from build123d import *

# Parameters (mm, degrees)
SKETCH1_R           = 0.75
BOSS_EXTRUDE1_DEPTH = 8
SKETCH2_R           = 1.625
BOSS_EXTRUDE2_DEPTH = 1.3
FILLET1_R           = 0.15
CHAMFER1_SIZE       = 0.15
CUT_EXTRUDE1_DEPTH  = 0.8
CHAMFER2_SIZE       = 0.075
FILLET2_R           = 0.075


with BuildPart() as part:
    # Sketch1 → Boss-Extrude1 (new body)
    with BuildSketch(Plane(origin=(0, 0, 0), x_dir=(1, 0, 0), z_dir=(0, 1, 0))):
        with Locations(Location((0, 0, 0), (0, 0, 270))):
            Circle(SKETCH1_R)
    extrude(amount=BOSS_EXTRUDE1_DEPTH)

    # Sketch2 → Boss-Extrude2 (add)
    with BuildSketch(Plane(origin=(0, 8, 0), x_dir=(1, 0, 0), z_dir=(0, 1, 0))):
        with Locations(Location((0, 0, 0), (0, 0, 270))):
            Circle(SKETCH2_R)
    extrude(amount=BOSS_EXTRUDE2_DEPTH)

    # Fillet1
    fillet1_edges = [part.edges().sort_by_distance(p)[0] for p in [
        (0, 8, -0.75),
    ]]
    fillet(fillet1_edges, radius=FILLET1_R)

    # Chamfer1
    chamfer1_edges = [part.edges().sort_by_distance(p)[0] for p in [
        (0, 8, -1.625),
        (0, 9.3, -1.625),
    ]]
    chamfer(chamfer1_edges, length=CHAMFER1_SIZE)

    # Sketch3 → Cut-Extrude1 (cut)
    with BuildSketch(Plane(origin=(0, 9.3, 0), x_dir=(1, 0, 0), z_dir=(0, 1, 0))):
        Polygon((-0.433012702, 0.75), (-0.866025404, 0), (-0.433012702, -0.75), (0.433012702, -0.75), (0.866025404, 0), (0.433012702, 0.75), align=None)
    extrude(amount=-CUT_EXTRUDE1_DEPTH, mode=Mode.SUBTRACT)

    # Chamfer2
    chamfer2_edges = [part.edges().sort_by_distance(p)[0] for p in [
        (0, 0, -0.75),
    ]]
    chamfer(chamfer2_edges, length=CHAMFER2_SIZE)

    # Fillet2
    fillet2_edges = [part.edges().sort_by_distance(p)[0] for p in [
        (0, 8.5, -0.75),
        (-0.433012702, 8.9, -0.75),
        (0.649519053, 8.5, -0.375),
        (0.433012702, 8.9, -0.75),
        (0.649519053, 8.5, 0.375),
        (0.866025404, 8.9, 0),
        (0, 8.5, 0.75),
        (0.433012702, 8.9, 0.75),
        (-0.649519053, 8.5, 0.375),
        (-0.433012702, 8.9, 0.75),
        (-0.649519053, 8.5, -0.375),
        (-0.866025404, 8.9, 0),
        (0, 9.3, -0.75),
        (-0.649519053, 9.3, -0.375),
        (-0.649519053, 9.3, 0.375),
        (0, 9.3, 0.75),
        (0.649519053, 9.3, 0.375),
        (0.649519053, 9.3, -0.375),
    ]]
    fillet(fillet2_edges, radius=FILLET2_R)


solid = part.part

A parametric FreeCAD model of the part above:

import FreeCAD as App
import Part
import Sketcher
from FreeCAD import Vector
Q = App.Units.Quantity


def edges_at(feature, points):
    """Names of the edges that pass closest to the given points."""
    edges = feature.Shape.Edges
    near = lambda p: min(range(len(edges)), key=lambda i: edges[i].distToShape(Part.Vertex(*p))[0])
    return sorted({f"Edge{near(p) + 1}" for p in points})

doc = App.newDocument("Part")
body = doc.addObject("PartDesign::Body", "Body")

sketch1 = doc.addObject("Sketcher::SketchObject", "Sketch")
body.addObject(sketch1)
sketch1.AttachmentSupport = (doc.XZ_Plane, [""])
sketch1.MapMode = "FlatFace"
sketch1.addGeometry(Part.Circle(Vector(0, 0, 0), Vector(0, 0, 1), 0.8), False)
sketch1.addConstraint(Sketcher.Constraint("Coincident", 0, 3, -1, 1))
sketch1.addConstraint(Sketcher.Constraint("Diameter", 0, Q("1.5 mm")))
pad1 = doc.addObject("PartDesign::Pad", "Pad")
body.addObject(pad1)
pad1.Profile = sketch1
pad1.Length = 8
pad1.Reversed = True

sketch2 = doc.addObject("Sketcher::SketchObject", "Sketch001")
body.addObject(sketch2)
sketch2.AttachmentSupport = (doc.XZ_Plane, [""])
sketch2.MapMode = "FlatFace"
sketch2.AttachmentOffset = App.Placement(Vector(0, 0, -8), App.Rotation())
sketch2.addGeometry(Part.Circle(Vector(0, 0, 0), Vector(0, 0, 1), 1.6), False)
sketch2.addConstraint(Sketcher.Constraint("Coincident", 0, 3, -1, 1))
sketch2.addConstraint(Sketcher.Constraint("Diameter", 0, Q("3.25 mm")))
pad2 = doc.addObject("PartDesign::Pad", "Pad001")
body.addObject(pad2)
pad2.Profile = sketch2
pad2.Length = 1.3
pad2.Reversed = True
doc.recompute()

fillet = doc.addObject("PartDesign::Fillet", "Fillet")
body.addObject(fillet)
fillet.Base = (pad2, edges_at(pad2, [(0, 8, -0.75)]))
fillet.Radius = 0.15
doc.recompute()

chamfer = doc.addObject("PartDesign::Chamfer", "Chamfer")
body.addObject(chamfer)
chamfer.Base = (fillet, edges_at(fillet, [(0, 8, -1.625), (0, 9.3, -1.625)]))
chamfer.Size = 0.15

sketch3 = doc.addObject("Sketcher::SketchObject", "Sketch002")
body.addObject(sketch3)
sketch3.AttachmentSupport = (doc.XZ_Plane, [""])
sketch3.MapMode = "FlatFace"
sketch3.AttachmentOffset = App.Placement(Vector(0, 0, -9.3), App.Rotation())
sketch3.addGeometry(Part.LineSegment(Vector(-0.4, -0.8, 0), Vector(-0.9, 0, 0)), False)
sketch3.addGeometry(Part.LineSegment(Vector(-0.9, 0, 0), Vector(-0.4, 0.8, 0)), False)
sketch3.addGeometry(Part.LineSegment(Vector(-0.4, 0.8, 0), Vector(0.4, 0.8, 0)), False)
sketch3.addGeometry(Part.LineSegment(Vector(0.4, 0.8, 0), Vector(0.9, 0, 0)), False)
sketch3.addGeometry(Part.LineSegment(Vector(0.9, 0, 0), Vector(0.4, -0.8, 0)), False)
sketch3.addGeometry(Part.LineSegment(Vector(0.4, -0.8, 0), Vector(-0.4, -0.8, 0)), False)
sketch3.addConstraint(Sketcher.Constraint("Coincident", 0, 2, 1, 1))
sketch3.addConstraint(Sketcher.Constraint("Coincident", 1, 2, 2, 1))
sketch3.addConstraint(Sketcher.Constraint("Coincident", 2, 2, 3, 1))
sketch3.addConstraint(Sketcher.Constraint("Coincident", 3, 2, 4, 1))
sketch3.addConstraint(Sketcher.Constraint("Coincident", 4, 2, 5, 1))
sketch3.addConstraint(Sketcher.Constraint("Coincident", 5, 2, 0, 1))
sketch3.addConstraint(Sketcher.Constraint("Horizontal", 2))
sketch3.addConstraint(Sketcher.Constraint("Horizontal", 5))
sketch3.addConstraint(Sketcher.Constraint("Symmetric", 0, 2, 3, 2, -1, 1))
sketch3.addConstraint(Sketcher.Constraint("Symmetric", 1, 2, 4, 2, -1, 1))
sketch3.addConstraint(Sketcher.Constraint("PointOnObject", 0, 2, -1))
sketch3.addConstraint(Sketcher.Constraint("Parallel", 0, 3))
sketch3.addConstraint(Sketcher.Constraint("Vertical", 2, 2, 4, 2))
sketch3.addConstraint(Sketcher.Constraint("Angle", 0, Q("120 deg")))
sketch3.addConstraint(Sketcher.Constraint("DistanceY", 4, 2, 2, 2, Q("1.5 mm")))
sketch3.addConstraint(Sketcher.Constraint("DistanceX", 2, 1, 2, 2, Q("0.866025 mm")))
pocket1 = doc.addObject("PartDesign::Pocket", "Pocket")
body.addObject(pocket1)
pocket1.Profile = sketch3
pocket1.Length = 0.8
pocket1.Reversed = True
doc.recompute()

chamfer2 = doc.addObject("PartDesign::Chamfer", "Chamfer001")
body.addObject(chamfer2)
chamfer2.Base = (pocket1, edges_at(pocket1, [(0, 0, -0.75)]))
chamfer2.Size = 0.075
doc.recompute()

fillet2 = doc.addObject("PartDesign::Fillet", "Fillet001")
body.addObject(fillet2)
fillet2.Base = (chamfer2, edges_at(chamfer2, [
    (0, 8.5, -0.75),
    (-0.433, 8.9, -0.75),
    (0.65, 8.5, -0.375),
    (0.433, 8.9, -0.75),
    (0.65, 8.5, 0.375),
    (0.866, 8.9, 0),
    (0, 8.5, 0.75),
    (0.433, 8.9, 0.75),
    (-0.65, 8.5, 0.375),
    (-0.433, 8.9, 0.75),
    (-0.65, 8.5, -0.375),
    (-0.866, 8.9, 0),
    (0, 9.3, -0.75),
    (-0.65, 9.3, -0.375),
    (-0.65, 9.3, 0.375),
    (0, 9.3, 0.75),
    (0.65, 9.3, 0.375),
    (0.65, 9.3, -0.375),
]))
fillet2.Radius = 0.075

doc.recompute()
